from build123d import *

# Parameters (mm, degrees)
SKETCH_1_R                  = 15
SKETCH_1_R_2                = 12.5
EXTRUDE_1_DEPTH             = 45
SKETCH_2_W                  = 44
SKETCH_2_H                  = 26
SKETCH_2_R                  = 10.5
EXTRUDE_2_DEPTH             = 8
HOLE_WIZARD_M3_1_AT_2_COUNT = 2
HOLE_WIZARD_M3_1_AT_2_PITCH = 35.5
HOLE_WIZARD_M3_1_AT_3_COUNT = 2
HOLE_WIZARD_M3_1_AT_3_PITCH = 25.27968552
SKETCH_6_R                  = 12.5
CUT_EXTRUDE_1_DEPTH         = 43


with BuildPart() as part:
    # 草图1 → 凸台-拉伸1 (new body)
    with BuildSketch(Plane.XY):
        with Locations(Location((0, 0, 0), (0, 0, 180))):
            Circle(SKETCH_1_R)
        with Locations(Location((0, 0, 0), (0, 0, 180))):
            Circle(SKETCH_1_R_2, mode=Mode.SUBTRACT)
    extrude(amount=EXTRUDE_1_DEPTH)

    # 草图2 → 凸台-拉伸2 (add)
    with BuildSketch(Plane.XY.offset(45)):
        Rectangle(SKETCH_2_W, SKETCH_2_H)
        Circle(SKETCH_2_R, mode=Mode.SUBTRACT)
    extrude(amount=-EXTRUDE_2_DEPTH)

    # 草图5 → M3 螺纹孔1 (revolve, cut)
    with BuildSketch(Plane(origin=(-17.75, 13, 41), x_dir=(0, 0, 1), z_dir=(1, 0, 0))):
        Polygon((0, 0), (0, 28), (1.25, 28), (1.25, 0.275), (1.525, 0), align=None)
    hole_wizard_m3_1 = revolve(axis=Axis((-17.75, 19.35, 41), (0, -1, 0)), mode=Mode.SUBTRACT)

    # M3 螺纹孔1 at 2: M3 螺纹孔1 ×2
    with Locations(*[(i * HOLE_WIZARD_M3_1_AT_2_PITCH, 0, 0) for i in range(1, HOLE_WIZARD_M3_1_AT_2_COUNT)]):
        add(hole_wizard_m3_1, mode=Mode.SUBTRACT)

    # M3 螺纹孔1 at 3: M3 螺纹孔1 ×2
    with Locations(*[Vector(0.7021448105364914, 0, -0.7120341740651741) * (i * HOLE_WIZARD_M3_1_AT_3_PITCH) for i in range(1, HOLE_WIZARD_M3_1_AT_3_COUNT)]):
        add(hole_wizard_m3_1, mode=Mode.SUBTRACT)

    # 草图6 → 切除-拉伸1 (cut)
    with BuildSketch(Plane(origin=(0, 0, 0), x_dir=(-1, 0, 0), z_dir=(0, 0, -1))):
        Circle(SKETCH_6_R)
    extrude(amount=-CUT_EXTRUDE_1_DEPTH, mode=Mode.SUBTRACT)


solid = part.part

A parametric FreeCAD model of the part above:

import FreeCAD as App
import Part
import Sketcher

V = App.Vector
Q = App.Units.Quantity

doc = App.newDocument("Part")
body = doc.addObject("PartDesign::Body", "Body")

# Sketch on XY plane
sketch1 = doc.addObject("Sketcher::SketchObject", "Sketch")
body.addObject(sketch1)
sketch1.AttachmentSupport = (doc.XY_Plane, [""])
sketch1.MapMode = "FlatFace"
sketch1.addGeometry([
    Part.Circle(V(0, 0, 0), V(0, 0, 1), 15),
    Part.Circle(V(0, 0, 0), V(0, 0, 1), 12.5),
], False)
sketch1.addConstraint([
    Sketcher.Constraint("Coincident", 0, 3, -1, 1),
    Sketcher.Constraint("Coincident", 1, 3, -1, 1),
    Sketcher.Constraint("Diameter", 0, Q("30 mm")),
    Sketcher.Constraint("Diameter", 1, Q("25 mm")),
])
pad1 = doc.addObject("PartDesign::Pad", "Pad")
body.addObject(pad1)
pad1.Profile = sketch1
pad1.Length = 45

# Sketch on XY plane
sketch2 = doc.addObject("Sketcher::SketchObject", "Sketch001")
body.addObject(sketch2)
sketch2.AttachmentSupport = (doc.XY_Plane, [""])
sketch2.MapMode = "FlatFace"
sketch2.AttachmentOffset = App.Placement(V(0, 0, 45), App.Rotation())
sketch2.addGeometry([
    Part.LineSegment(V(-22, 13, 0), V(-22, -13, 0)),  # 0
    Part.LineSegment(V(-22, -13, 0), V(22, -13, 0)),  # 1
    Part.LineSegment(V(22, -13, 0), V(22, 13, 0)),  # 2
    Part.LineSegment(V(22, 13, 0), V(-22, 13, 0)),  # 3
    Part.Circle(V(0, 0, 0), V(0, 0, 1), 10.5),  # 4
], False)
sketch2.addConstraint([
    Sketcher.Constraint("Coincident", 0, 2, 1, 1),
    Sketcher.Constraint("Coincident", 1, 2, 2, 1),
    Sketcher.Constraint("Coincident", 2, 2, 3, 1),
    Sketcher.Constraint("Coincident", 3, 2, 0, 1),
    Sketcher.Constraint("Vertical", 0),
    Sketcher.Constraint("Horizontal", 1),
    Sketcher.Constraint("Vertical", 2),
    Sketcher.Constraint("Horizontal", 3),
    Sketcher.Constraint("Coincident", 4, 3, -1, 1),
    Sketcher.Constraint("Symmetric", 0, 2, 2, 2, -1, 1),
    Sketcher.Constraint("Diameter", 4, Q("21 mm")),
    Sketcher.Constraint("DistanceX", 1, 1, 1, 2, Q("44 mm")),
    Sketcher.Constraint("DistanceY", 0, 2, 0, 1, Q("26 mm")),
])
pad2 = doc.addObject("PartDesign::Pad", "Pad001")
body.addObject(pad2)
pad2.Profile = sketch2
pad2.Length = 8
pad2.Reversed = True

# Sketch on YZ plane
sketch3 = doc.addObject("Sketcher::SketchObject", "Sketch002")
body.addObject(sketch3)
sketch3.AttachmentSupport = (doc.YZ_Plane, [""])
sketch3.MapMode = "FlatFace"
sketch3.AttachmentOffset = App.Placement(V(0, 0, -17.75), App.Rotation())
sketch3.addGeometry([
    Part.LineSegment(V(-15, 41, 0), V(13, 41, 0)),  # 0
    Part.LineSegment(V(13, 41, 0), V(13, 42.525, 0)),  # 1
    Part.LineSegment(V(13, 42.525, 0), V(12.725, 42.25, 0)),  # 2
    Part.LineSegment(V(12.725, 42.25, 0), V(-15, 42.25, 0)),  # 3
    Part.LineSegment(V(-15, 42.25, 0), V(-15, 41, 0)),  # 4
], False)
sketch3.addGeometry(Part.LineSegment(V(13, 41, 0), V(-15, 41, 0)), True)  # axis
sketch3.addConstraint([
    Sketcher.Constraint("Coincident", 0, 2, 1, 1),
    Sketcher.Constraint("Coincident", 1, 2, 2, 1),
    Sketcher.Constraint("Coincident", 2, 2, 3, 1),
    Sketcher.Constraint("Coincident", 3, 2, 4, 1),
    Sketcher.Constraint("Coincident", 4, 2, 0, 1),
    Sketcher.Constraint("Horizontal", 0),
    Sketcher.Constraint("Vertical", 1),
    Sketcher.Constraint("Horizontal", 3),
    Sketcher.Constraint("Vertical", 4),
    Sketcher.Constraint("Horizontal", 5),
    Sketcher.Constraint("Coincident", 5, 1, 0, 2),
    Sketcher.Constraint("Vertical", 3, 2, 5, 2),
    Sketcher.Constraint("DistanceX", 0, 1, 0, 2, Q("28 mm")),
    Sketcher.Constraint("Angle", 2, Q("-135 deg")),
    Sketcher.Constraint("DistanceX", -1, 1, 0, 2, Q("13 mm")),
    Sketcher.Constraint("DistanceY", -1, 1, 0, 2, Q("41 mm")),
    Sketcher.Constraint("DistanceY", 4, 2, 4, 1, Q("1.25 mm")),
    Sketcher.Constraint("DistanceX", 3, 2, 3, 1, Q("27.725 mm")),
])
groove = doc.addObject("PartDesign::Groove", "Groove")
body.addObject(groove)
groove.Profile = sketch3
groove.ReferenceAxis = (sketch3, ["Axis0"])
groove.Angle = 360
doc.recompute()

linearpattern = doc.addObject("PartDesign::LinearPattern", "LinearPattern")
body.addObject(linearpattern)
linearpattern.Originals = [groove]
linearpattern.Direction = (doc.X_Axis, [""])
linearpattern.Mode = "offset"
linearpattern.Offset = 35.5
linearpattern.Occurrences = 2
body.Tip = linearpattern
doc.recompute()

datumline = doc.addObject("PartDesign::Line", "DatumLine")
body.addObject(datumline)
datumline.Placement = App.Placement(V(0, 0, 0), App.Rotation(V(0, 0, 1), V(0.702144811, 0, -0.712034174)))
linearpattern2 = doc.addObject("PartDesign::LinearPattern", "LinearPattern001")
body.addObject(linearpattern2)
linearpattern2.Originals = [groove]
linearpattern2.Direction = (datumline, [""])
linearpattern2.Mode = "offset"
linearpattern2.Offset = 25.279686
linearpattern2.Occurrences = 2
body.Tip = linearpattern2

# Sketch on XY plane
sketch4 = doc.addObject("Sketcher::SketchObject", "Sketch003")
body.addObject(sketch4)
sketch4.AttachmentSupport = (doc.XY_Plane, [""])
sketch4.MapMode = "FlatFace"
sketch4.addGeometry(Part.Circle(V(0, 0, 0), V(0, 0, 1), 12.5), False)
sketch4.addConstraint([
    Sketcher.Constraint("Coincident", 0, 3, -1, 1),
    Sketcher.Constraint("Diameter", 0, Q("25 mm")),
])
pocket1 = doc.addObject("PartDesign::Pocket", "Pocket")
body.addObject(pocket1)
pocket1.Profile = sketch4
pocket1.Length = 43
pocket1.Reversed = True

doc.recompute()
